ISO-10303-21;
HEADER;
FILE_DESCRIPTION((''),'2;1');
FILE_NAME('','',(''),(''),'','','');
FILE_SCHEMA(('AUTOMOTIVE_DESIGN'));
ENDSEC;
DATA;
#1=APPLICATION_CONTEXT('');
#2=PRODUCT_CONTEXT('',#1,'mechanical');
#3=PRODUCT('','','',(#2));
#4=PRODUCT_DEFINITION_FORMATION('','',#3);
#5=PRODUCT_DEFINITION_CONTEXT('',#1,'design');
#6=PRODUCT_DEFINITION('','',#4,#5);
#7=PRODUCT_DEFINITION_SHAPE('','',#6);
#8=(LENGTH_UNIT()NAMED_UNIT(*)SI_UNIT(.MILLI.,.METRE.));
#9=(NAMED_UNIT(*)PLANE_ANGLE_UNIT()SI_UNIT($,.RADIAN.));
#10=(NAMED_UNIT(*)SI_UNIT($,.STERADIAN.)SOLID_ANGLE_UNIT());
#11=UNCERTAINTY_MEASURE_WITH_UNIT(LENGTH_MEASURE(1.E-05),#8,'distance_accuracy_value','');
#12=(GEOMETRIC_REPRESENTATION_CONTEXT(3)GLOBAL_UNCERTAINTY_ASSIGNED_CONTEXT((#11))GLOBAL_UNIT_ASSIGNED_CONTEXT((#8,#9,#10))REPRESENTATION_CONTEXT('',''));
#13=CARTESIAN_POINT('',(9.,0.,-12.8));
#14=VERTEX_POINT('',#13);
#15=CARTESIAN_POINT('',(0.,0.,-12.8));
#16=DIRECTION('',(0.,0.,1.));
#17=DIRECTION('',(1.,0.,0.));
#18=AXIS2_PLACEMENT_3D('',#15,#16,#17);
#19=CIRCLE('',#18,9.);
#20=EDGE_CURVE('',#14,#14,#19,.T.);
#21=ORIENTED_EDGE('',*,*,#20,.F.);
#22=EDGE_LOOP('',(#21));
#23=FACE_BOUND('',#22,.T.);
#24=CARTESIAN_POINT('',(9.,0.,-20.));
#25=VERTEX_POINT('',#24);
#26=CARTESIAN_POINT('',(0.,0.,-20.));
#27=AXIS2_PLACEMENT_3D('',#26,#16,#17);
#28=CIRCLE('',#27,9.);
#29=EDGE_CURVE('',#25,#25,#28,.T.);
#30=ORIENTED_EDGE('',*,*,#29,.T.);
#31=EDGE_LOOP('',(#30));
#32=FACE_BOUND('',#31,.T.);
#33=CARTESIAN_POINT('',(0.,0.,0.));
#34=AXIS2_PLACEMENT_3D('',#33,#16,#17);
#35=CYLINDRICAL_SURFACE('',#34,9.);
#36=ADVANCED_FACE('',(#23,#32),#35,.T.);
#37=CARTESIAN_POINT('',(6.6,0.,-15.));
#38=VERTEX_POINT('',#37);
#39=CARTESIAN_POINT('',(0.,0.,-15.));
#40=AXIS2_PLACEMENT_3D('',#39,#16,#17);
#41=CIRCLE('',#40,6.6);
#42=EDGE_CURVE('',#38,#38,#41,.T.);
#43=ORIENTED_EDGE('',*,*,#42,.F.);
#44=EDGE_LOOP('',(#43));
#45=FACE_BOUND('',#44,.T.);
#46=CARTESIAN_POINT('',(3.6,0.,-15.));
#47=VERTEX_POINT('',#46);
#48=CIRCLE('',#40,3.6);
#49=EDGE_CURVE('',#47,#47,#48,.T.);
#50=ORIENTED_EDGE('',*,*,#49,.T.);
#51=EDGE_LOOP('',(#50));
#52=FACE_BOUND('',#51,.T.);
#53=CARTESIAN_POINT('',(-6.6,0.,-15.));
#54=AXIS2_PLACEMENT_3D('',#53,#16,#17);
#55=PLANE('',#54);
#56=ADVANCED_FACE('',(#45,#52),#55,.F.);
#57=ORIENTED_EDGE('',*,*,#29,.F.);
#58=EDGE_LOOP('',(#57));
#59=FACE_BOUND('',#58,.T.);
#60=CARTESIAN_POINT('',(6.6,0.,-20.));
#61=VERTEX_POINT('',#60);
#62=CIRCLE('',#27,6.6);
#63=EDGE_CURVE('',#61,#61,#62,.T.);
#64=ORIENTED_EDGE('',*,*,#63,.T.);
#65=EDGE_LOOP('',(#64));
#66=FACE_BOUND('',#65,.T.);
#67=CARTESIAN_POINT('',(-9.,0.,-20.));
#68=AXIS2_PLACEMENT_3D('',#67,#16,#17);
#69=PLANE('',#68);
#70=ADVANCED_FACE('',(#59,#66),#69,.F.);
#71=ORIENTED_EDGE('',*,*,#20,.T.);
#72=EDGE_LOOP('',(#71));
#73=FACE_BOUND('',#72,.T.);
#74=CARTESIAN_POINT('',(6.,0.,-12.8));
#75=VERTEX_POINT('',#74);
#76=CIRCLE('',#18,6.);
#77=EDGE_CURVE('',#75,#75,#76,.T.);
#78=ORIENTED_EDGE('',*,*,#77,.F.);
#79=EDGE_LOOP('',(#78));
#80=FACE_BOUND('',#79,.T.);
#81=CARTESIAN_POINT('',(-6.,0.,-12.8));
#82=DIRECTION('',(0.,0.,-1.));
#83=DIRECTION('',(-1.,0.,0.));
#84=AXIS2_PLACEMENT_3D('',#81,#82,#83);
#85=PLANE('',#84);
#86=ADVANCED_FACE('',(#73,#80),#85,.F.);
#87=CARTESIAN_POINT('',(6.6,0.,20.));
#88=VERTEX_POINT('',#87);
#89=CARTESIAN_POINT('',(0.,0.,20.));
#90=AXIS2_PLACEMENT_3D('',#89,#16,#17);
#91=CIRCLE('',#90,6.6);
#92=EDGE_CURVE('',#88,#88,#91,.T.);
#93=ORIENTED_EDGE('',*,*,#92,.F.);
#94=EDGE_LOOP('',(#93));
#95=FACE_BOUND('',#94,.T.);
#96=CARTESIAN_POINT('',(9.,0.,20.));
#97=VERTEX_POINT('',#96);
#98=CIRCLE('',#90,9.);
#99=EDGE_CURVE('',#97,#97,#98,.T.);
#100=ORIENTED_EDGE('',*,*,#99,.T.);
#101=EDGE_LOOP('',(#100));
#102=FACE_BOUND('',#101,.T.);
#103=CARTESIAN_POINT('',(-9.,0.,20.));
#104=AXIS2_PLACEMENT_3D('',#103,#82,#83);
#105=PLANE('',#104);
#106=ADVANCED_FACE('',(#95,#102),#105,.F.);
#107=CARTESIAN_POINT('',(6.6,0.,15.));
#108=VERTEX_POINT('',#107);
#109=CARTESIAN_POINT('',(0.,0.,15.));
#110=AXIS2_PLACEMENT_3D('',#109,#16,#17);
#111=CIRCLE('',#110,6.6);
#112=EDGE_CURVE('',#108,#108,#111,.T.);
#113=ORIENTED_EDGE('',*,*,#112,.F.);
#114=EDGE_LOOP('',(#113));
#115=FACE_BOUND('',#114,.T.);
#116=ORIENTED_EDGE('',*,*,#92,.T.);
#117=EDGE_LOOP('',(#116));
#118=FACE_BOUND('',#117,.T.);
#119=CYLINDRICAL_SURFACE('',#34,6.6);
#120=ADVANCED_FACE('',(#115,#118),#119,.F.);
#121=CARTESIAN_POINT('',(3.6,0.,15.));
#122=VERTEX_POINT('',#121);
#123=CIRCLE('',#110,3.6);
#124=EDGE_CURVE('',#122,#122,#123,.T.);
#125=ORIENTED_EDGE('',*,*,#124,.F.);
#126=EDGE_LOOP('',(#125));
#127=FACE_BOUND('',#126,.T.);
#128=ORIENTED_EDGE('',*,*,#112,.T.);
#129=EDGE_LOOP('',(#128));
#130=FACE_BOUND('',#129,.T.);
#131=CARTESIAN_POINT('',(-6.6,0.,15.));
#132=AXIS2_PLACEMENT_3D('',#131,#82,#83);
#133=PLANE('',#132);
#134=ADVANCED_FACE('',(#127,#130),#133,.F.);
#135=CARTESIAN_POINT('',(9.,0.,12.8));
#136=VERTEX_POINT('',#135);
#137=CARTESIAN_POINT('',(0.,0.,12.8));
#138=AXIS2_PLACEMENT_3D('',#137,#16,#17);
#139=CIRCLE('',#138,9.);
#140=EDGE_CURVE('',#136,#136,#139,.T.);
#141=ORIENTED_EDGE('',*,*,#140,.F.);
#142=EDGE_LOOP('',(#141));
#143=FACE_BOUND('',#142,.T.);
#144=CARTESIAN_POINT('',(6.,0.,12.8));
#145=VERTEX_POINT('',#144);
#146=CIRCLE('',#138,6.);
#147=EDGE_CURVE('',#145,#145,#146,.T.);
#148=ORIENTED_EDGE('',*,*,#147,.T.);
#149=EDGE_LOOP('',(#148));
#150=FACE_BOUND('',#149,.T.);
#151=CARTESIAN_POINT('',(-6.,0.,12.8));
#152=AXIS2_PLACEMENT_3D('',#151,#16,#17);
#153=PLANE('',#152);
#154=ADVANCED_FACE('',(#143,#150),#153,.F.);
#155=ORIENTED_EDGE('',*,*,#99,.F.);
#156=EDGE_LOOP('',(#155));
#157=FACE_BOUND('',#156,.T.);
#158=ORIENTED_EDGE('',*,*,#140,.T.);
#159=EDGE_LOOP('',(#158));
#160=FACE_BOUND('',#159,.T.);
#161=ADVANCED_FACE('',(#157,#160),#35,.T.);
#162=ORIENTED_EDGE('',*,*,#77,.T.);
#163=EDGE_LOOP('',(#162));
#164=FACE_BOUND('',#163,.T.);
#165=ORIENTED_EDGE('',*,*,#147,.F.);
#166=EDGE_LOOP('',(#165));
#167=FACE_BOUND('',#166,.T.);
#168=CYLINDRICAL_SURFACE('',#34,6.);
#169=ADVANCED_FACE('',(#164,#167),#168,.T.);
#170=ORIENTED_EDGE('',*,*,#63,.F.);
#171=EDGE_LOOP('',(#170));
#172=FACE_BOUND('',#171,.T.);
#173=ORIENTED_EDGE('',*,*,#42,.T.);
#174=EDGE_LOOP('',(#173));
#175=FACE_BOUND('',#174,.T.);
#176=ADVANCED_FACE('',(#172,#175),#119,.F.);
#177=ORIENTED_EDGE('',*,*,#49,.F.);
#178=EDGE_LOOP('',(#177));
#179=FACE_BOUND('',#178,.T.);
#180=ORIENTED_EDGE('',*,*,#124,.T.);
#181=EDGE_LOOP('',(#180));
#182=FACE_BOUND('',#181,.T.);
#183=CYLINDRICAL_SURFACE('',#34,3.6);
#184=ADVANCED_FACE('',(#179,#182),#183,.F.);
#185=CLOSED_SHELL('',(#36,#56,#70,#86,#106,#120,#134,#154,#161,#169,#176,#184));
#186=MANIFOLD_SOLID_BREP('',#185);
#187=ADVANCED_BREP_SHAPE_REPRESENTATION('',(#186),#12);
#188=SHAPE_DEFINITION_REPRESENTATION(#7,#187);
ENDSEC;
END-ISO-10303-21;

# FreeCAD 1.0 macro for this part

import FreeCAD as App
import Part
import Sketcher
Q = App.Units.Quantity

doc = App.newDocument("Part")
body = doc.addObject("PartDesign::Body", "Body")

sketch1 = body.newObject("Sketcher::SketchObject", "Sketch")
sketch1.AttachmentSupport = (doc.getObject("XZ_Plane"), [""])
sketch1.MapMode = "FlatFace"
sketch1.addGeometry(Part.LineSegment(App.Vector(-6, -12.8, 0), App.Vector(-6, 12.8, 0)), False)
sketch1.addGeometry(Part.LineSegment(App.Vector(-6, 12.8, 0), App.Vector(-9, 12.8, 0)), False)
sketch1.addGeometry(Part.LineSegment(App.Vector(-9, 12.8, 0), App.Vector(-9, 20, 0)), False)
sketch1.addGeometry(Part.LineSegment(App.Vector(-9, 20, 0), App.Vector(-6.6, 20, 0)), False)
sketch1.addGeometry(Part.LineSegment(App.Vector(-6.6, 20, 0), App.Vector(-6.6, 15, 0)), False)
sketch1.addGeometry(Part.LineSegment(App.Vector(-6.6, 15, 0), App.Vector(-3.6, 15, 0)), False)
sketch1.addGeometry(Part.LineSegment(App.Vector(-3.6, 15, 0), App.Vector(-3.6, -15, 0)), False)
sketch1.addGeometry(Part.LineSegment(App.Vector(-3.6, -15, 0), App.Vector(-6.6, -15, 0)), False)
sketch1.addGeometry(Part.LineSegment(App.Vector(-6.6, -15, 0), App.Vector(-6.6, -20, 0)), False)
sketch1.addGeometry(Part.LineSegment(App.Vector(-6.6, -20, 0), App.Vector(-9, -20, 0)), False)
sketch1.addGeometry(Part.LineSegment(App.Vector(-9, -20, 0), App.Vector(-9, -12.8, 0)), False)
sketch1.addGeometry(Part.LineSegment(App.Vector(-9, -12.8, 0), App.Vector(-6, -12.8, 0)), False)
sketch1.addConstraint(Sketcher.Constraint("Coincident", 0, 2, 1, 1))
sketch1.addConstraint(Sketcher.Constraint("Coincident", 1, 2, 2, 1))
sketch1.addConstraint(Sketcher.Constraint("Coincident", 2, 2, 3, 1))
sketch1.addConstraint(Sketcher.Constraint("Coincident", 3, 2, 4, 1))
sketch1.addConstraint(Sketcher.Constraint("Coincident", 4, 2, 5, 1))
sketch1.addConstraint(Sketcher.Constraint("Coincident", 5, 2, 6, 1))
sketch1.addConstraint(Sketcher.Constraint("Coincident", 6, 2, 7, 1))
sketch1.addConstraint(Sketcher.Constraint("Coincident", 7, 2, 8, 1))
sketch1.addConstraint(Sketcher.Constraint("Coincident", 8, 2, 9, 1))
sketch1.addConstraint(Sketcher.Constraint("Coincident", 9, 2, 10, 1))
sketch1.addConstraint(Sketcher.Constraint("Coincident", 10, 2, 11, 1))
sketch1.addConstraint(Sketcher.Constraint("Coincident", 11, 2, 0, 1))
sketch1.addConstraint(Sketcher.Constraint("Vertical", 0))
sketch1.addConstraint(Sketcher.Constraint("Horizontal", 1))
sketch1.addConstraint(Sketcher.Constraint("Vertical", 2))
sketch1.addConstraint(Sketcher.Constraint("Horizontal", 3))
sketch1.addConstraint(Sketcher.Constraint("Vertical", 4))
sketch1.addConstraint(Sketcher.Constraint("Horizontal", 5))
sketch1.addConstraint(Sketcher.Constraint("Vertical", 6))
sketch1.addConstraint(Sketcher.Constraint("Horizontal", 7))
sketch1.addConstraint(Sketcher.Constraint("Vertical", 8))
sketch1.addConstraint(Sketcher.Constraint("Horizontal", 9))
sketch1.addConstraint(Sketcher.Constraint("Vertical", 10))
sketch1.addConstraint(Sketcher.Constraint("Horizontal", 11))
sketch1.addConstraint(Sketcher.Constraint("Symmetric", 4, 2, 7, 2, -1))
sketch1.addConstraint(Sketcher.Constraint("Symmetric", 2, 2, 9, 2, -1))
sketch1.addConstraint(Sketcher.Constraint("Equal", 1, 5))
sketch1.addConstraint(Sketcher.Constraint("Equal", 2, 10))
sketch1.addConstraint(Sketcher.Constraint("DistanceX", 1, 2, 1, 1, Q("3 mm")))
sketch1.addConstraint(Sketcher.Constraint("DistanceY", 4, 2, 4, 1, Q("5 mm")))
sketch1.addConstraint(Sketcher.Constraint("DistanceY", 6, 2, 6, 1, Q("30 mm")))
sketch1.addConstraint(Sketcher.Constraint("DistanceX", 3, 1, 3, 2, Q("2.4 mm")))
sketch1.addConstraint(Sketcher.Constraint("DistanceY", 0, 1, 0, 2, Q("25.6 mm")))
sketch1.addConstraint(Sketcher.Constraint("DistanceX", 0, 2, -1, 1, Q("6 mm")))
revolution = body.newObject("PartDesign::Revolution", "Revolution")
revolution.Profile = sketch1
revolution.ReferenceAxis = (sketch1, ["V_Axis"])
revolution.Angle = 360

doc.recompute()
